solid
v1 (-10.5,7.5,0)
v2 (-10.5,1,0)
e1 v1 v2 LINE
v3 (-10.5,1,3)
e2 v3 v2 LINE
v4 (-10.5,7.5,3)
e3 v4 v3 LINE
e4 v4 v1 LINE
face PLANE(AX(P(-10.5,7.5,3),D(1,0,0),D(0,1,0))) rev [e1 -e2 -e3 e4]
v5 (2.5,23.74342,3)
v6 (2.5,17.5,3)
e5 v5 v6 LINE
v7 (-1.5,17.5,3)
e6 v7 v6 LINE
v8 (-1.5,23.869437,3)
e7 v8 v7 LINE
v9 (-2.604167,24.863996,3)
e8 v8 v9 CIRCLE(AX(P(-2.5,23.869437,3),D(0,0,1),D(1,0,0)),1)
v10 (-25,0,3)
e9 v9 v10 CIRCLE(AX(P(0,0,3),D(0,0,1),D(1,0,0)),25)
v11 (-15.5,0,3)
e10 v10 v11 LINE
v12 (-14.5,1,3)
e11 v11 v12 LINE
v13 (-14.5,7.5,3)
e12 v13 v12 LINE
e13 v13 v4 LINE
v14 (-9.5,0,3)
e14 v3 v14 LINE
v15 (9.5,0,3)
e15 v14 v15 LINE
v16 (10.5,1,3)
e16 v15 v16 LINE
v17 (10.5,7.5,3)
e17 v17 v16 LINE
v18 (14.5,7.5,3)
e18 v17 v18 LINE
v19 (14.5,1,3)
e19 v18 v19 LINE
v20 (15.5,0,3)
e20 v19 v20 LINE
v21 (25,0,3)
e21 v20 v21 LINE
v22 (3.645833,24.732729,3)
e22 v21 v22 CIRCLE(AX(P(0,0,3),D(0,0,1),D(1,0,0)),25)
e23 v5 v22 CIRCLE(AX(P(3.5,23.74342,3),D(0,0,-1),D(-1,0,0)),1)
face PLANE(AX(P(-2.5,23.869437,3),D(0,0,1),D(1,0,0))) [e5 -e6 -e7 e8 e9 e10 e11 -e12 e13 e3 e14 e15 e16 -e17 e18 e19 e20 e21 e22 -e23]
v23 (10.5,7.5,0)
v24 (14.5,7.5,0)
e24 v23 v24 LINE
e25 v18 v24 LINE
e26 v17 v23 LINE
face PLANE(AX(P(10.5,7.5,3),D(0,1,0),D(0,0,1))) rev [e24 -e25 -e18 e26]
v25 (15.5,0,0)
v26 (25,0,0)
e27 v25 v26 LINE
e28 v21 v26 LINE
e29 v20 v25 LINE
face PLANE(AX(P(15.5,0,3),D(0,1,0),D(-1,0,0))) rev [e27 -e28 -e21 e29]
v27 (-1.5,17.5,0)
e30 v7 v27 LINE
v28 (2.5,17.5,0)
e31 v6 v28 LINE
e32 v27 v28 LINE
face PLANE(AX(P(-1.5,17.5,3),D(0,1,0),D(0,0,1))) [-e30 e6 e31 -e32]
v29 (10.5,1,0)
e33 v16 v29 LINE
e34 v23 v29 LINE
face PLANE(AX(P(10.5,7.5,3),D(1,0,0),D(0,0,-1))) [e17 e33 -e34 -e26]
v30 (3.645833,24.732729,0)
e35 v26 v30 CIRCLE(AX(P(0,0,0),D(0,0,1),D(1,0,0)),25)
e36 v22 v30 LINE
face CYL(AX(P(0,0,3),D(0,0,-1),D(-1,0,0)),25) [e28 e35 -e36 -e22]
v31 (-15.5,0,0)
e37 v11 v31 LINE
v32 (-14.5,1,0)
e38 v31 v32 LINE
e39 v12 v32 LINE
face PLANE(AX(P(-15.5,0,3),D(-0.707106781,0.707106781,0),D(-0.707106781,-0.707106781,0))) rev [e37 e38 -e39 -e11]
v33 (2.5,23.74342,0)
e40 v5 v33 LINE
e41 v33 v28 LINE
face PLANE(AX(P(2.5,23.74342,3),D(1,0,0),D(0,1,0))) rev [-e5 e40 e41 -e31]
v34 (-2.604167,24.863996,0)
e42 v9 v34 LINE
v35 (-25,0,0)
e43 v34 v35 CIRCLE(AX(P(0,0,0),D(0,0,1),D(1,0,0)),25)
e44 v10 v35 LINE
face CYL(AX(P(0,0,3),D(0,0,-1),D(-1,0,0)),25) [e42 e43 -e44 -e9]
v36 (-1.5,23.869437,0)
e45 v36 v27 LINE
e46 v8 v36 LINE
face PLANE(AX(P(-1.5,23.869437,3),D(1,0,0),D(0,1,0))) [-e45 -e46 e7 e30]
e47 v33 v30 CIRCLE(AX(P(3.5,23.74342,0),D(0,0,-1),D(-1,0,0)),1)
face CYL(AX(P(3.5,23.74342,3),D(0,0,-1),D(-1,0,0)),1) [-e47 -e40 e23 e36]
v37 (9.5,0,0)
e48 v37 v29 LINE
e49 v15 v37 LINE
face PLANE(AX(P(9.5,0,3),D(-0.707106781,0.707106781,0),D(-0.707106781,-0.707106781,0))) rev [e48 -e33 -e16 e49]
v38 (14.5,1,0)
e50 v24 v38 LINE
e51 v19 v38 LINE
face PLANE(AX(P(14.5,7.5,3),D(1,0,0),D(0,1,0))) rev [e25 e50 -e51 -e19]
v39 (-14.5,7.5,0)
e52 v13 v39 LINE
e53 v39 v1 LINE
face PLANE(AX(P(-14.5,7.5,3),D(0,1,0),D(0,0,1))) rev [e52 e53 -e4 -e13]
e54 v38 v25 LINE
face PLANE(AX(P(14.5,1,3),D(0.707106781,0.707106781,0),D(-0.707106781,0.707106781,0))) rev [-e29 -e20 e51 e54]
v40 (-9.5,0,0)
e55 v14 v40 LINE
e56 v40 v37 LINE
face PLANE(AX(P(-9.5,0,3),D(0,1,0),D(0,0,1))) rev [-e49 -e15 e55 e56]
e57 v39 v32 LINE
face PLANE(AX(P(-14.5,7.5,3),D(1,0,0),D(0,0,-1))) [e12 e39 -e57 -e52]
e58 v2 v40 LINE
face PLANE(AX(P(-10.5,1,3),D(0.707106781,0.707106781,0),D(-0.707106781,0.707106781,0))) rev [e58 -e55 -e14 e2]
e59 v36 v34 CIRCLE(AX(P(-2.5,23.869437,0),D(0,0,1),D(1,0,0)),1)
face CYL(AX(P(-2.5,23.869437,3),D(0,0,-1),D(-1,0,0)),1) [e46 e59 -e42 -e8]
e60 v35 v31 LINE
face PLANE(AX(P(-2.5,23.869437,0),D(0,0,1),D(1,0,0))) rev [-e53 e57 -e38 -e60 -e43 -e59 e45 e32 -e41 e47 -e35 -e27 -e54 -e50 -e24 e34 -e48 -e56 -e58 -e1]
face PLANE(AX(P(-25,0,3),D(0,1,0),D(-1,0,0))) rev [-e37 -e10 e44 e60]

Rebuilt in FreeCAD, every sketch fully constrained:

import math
import FreeCAD as App
import Part
import Sketcher
Q = App.Units.Quantity

doc = App.newDocument("Part")
params = doc.addObject("Spreadsheet::Sheet", "Params")
for row, (alias, value) in enumerate([
    ("sketch1_radius", "25 mm"),
    ("sketch1_radius2", "1 mm"),
    ("sketch1_width", "4 mm"),
    ("sketch1_width2", "19 mm"),
    ("sketch1_width3", "9.5 mm"),
    ("pad1_length", "3 mm"),
], start=1):
    params.set(f"A{row}", alias)
    params.set(f"B{row}", "=" + value)
    params.setAlias(f"B{row}", alias)

body = doc.addObject("PartDesign::Body", "Body")

# Sketch on XY plane
sketch1 = body.newObject("Sketcher::SketchObject", "Sketch")
sketch1.AttachmentSupport = (doc.getObject("XY_Plane"), [""])
sketch1.MapMode = "FlatFace"
sketch1.addGeometry([
    Part.LineSegment(App.Vector(-25, 0, 0), App.Vector(-15.5, 0, 0)),  # 0
    Part.LineSegment(App.Vector(-15.5, 0, 0), App.Vector(-14.5, 1, 0)),  # 1
    Part.LineSegment(App.Vector(-14.5, 1, 0), App.Vector(-14.5, 7.5, 0)),  # 2
    Part.LineSegment(App.Vector(-14.5, 7.5, 0), App.Vector(-10.5, 7.5, 0)),  # 3
    Part.LineSegment(App.Vector(-10.5, 7.5, 0), App.Vector(-10.5, 1, 0)),  # 4
    Part.LineSegment(App.Vector(-10.5, 1, 0), App.Vector(-9.5, 0, 0)),  # 5
    Part.LineSegment(App.Vector(-9.5, 0, 0), App.Vector(9.5, 0, 0)),  # 6
    Part.LineSegment(App.Vector(9.5, 0, 0), App.Vector(10.5, 1, 0)),  # 7
    Part.LineSegment(App.Vector(10.5, 1, 0), App.Vector(10.5, 7.5, 0)),  # 8
    Part.LineSegment(App.Vector(10.5, 7.5, 0), App.Vector(14.5, 7.5, 0)),  # 9
    Part.LineSegment(App.Vector(14.5, 7.5, 0), App.Vector(14.5, 1, 0)),  # 10
    Part.LineSegment(App.Vector(14.5, 1, 0), App.Vector(15.5, 0, 0)),  # 11
    Part.LineSegment(App.Vector(15.5, 0, 0), App.Vector(25, 0, 0)),  # 12
    Part.ArcOfCircle(Part.Circle(App.Vector(0, 0, 0), App.Vector(0, 0, 1), 25), math.radians(0), math.radians(82)),  # 13
    Part.ArcOfCircle(Part.Circle(App.Vector(3.5, 23.7, 0), App.Vector(0, 0, 1), 1), math.radians(82), math.radians(180)),  # 14
    Part.LineSegment(App.Vector(2.5, 23.7, 0), App.Vector(2.5, 17.5, 0)),  # 15
    Part.LineSegment(App.Vector(2.5, 17.5, 0), App.Vector(-1.5, 17.5, 0)),  # 16
    Part.LineSegment(App.Vector(-1.5, 17.5, 0), App.Vector(-1.5, 23.9, 0)),  # 17
    Part.ArcOfCircle(Part.Circle(App.Vector(-2.5, 23.9, 0), App.Vector(0, 0, 1), 1), math.radians(0), math.radians(96)),  # 18
    Part.ArcOfCircle(Part.Circle(App.Vector(0, 0, 0), App.Vector(0, 0, 1), 25), math.radians(96), math.radians(180)),  # 19
], False)
sketch1.addConstraint([
    Sketcher.Constraint("Coincident", 0, 2, 1, 1),
    Sketcher.Constraint("Coincident", 1, 2, 2, 1),
    Sketcher.Constraint("Coincident", 2, 2, 3, 1),
    Sketcher.Constraint("Coincident", 3, 2, 4, 1),
    Sketcher.Constraint("Coincident", 4, 2, 5, 1),
    Sketcher.Constraint("Coincident", 5, 2, 6, 1),
    Sketcher.Constraint("Coincident", 6, 2, 7, 1),
    Sketcher.Constraint("Coincident", 7, 2, 8, 1),
    Sketcher.Constraint("Coincident", 8, 2, 9, 1),
    Sketcher.Constraint("Coincident", 9, 2, 10, 1),
    Sketcher.Constraint("Coincident", 10, 2, 11, 1),
    Sketcher.Constraint("Coincident", 11, 2, 12, 1),
    Sketcher.Constraint("Coincident", 12, 2, 13, 1),
    Sketcher.Constraint("Tangent", 13, 2, 14, 1),
    Sketcher.Constraint("Tangent", 14, 2, 15, 1),
    Sketcher.Constraint("Coincident", 15, 2, 16, 1),
    Sketcher.Constraint("Coincident", 16, 2, 17, 1),
    Sketcher.Constraint("Tangent", 17, 2, 18, 1),
    Sketcher.Constraint("Tangent", 18, 2, 19, 1),
    Sketcher.Constraint("Coincident", 19, 2, 0, 1),
    Sketcher.Constraint("Horizontal", 0),
    Sketcher.Constraint("Vertical", 2),
    Sketcher.Constraint("Horizontal", 3),
    Sketcher.Constraint("Vertical", 4),
    Sketcher.Constraint("Horizontal", 6),
    Sketcher.Constraint("Vertical", 8),
    Sketcher.Constraint("Horizontal", 9),
    Sketcher.Constraint("Vertical", 10),
    Sketcher.Constraint("Horizontal", 12),
    Sketcher.Constraint("Vertical", 15),
    Sketcher.Constraint("Horizontal", 16),
    Sketcher.Constraint("Vertical", 17),
    Sketcher.Constraint("Coincident", 13, 3, -1, 1),
    Sketcher.Constraint("Coincident", 19, 3, -1, 1),
    Sketcher.Constraint("Equal", 14, 18),
    Sketcher.Constraint("Equal", 13, 19),
    Sketcher.Constraint("Symmetric", 5, 2, 6, 2, -1, 1),
    Sketcher.Constraint("Symmetric", 0, 2, 11, 2, -1, 1),
    Sketcher.Constraint("Symmetric", 4, 2, 7, 2, -2),
    Sketcher.Constraint("Symmetric", 2, 2, 9, 2, -2),
    Sketcher.Constraint("PointOnObject", 0, 2, -1),
    Sketcher.Constraint("Perpendicular", 1, 5),
    Sketcher.Constraint("Perpendicular", 5, 7),
    Sketcher.Constraint("Perpendicular", 7, 11),
    Sketcher.Constraint("Horizontal", 1, 2, 4, 2),
    Sketcher.Constraint("Equal", 9, 16),
    Sketcher.Constraint("Radius", 13, Q("25 mm")),
    Sketcher.Constraint("Radius", 14, Q("1 mm")),
    Sketcher.Constraint("DistanceX", 3, 1, 3, 2, Q("4 mm")),
    Sketcher.Constraint("DistanceX", 6, 1, 6, 2, Q("19 mm")),
    Sketcher.Constraint("DistanceX", 0, 1, 0, 2, Q("9.5 mm")),
    Sketcher.Constraint("DistanceY", 2, 1, 2, 2, Q("6.5 mm")),
    Sketcher.Constraint("DistanceX", 0, 2, 18, 3, Q("13 mm")),
    Sketcher.Constraint("DistanceY", 8, 2, 15, 2, Q("10 mm")),
])
sketch1.setExpression("Constraints[46]", "Params.sketch1_radius")
sketch1.setExpression("Constraints[47]", "Params.sketch1_radius2")
sketch1.setExpression("Constraints[48]", "Params.sketch1_width")
sketch1.setExpression("Constraints[49]", "Params.sketch1_width2")
sketch1.setExpression("Constraints[50]", "Params.sketch1_width3")
pad1 = body.newObject("PartDesign::Pad", "Pad")
pad1.Profile = sketch1
pad1.setExpression("Length", "Params.pad1_length")

doc.recompute()
